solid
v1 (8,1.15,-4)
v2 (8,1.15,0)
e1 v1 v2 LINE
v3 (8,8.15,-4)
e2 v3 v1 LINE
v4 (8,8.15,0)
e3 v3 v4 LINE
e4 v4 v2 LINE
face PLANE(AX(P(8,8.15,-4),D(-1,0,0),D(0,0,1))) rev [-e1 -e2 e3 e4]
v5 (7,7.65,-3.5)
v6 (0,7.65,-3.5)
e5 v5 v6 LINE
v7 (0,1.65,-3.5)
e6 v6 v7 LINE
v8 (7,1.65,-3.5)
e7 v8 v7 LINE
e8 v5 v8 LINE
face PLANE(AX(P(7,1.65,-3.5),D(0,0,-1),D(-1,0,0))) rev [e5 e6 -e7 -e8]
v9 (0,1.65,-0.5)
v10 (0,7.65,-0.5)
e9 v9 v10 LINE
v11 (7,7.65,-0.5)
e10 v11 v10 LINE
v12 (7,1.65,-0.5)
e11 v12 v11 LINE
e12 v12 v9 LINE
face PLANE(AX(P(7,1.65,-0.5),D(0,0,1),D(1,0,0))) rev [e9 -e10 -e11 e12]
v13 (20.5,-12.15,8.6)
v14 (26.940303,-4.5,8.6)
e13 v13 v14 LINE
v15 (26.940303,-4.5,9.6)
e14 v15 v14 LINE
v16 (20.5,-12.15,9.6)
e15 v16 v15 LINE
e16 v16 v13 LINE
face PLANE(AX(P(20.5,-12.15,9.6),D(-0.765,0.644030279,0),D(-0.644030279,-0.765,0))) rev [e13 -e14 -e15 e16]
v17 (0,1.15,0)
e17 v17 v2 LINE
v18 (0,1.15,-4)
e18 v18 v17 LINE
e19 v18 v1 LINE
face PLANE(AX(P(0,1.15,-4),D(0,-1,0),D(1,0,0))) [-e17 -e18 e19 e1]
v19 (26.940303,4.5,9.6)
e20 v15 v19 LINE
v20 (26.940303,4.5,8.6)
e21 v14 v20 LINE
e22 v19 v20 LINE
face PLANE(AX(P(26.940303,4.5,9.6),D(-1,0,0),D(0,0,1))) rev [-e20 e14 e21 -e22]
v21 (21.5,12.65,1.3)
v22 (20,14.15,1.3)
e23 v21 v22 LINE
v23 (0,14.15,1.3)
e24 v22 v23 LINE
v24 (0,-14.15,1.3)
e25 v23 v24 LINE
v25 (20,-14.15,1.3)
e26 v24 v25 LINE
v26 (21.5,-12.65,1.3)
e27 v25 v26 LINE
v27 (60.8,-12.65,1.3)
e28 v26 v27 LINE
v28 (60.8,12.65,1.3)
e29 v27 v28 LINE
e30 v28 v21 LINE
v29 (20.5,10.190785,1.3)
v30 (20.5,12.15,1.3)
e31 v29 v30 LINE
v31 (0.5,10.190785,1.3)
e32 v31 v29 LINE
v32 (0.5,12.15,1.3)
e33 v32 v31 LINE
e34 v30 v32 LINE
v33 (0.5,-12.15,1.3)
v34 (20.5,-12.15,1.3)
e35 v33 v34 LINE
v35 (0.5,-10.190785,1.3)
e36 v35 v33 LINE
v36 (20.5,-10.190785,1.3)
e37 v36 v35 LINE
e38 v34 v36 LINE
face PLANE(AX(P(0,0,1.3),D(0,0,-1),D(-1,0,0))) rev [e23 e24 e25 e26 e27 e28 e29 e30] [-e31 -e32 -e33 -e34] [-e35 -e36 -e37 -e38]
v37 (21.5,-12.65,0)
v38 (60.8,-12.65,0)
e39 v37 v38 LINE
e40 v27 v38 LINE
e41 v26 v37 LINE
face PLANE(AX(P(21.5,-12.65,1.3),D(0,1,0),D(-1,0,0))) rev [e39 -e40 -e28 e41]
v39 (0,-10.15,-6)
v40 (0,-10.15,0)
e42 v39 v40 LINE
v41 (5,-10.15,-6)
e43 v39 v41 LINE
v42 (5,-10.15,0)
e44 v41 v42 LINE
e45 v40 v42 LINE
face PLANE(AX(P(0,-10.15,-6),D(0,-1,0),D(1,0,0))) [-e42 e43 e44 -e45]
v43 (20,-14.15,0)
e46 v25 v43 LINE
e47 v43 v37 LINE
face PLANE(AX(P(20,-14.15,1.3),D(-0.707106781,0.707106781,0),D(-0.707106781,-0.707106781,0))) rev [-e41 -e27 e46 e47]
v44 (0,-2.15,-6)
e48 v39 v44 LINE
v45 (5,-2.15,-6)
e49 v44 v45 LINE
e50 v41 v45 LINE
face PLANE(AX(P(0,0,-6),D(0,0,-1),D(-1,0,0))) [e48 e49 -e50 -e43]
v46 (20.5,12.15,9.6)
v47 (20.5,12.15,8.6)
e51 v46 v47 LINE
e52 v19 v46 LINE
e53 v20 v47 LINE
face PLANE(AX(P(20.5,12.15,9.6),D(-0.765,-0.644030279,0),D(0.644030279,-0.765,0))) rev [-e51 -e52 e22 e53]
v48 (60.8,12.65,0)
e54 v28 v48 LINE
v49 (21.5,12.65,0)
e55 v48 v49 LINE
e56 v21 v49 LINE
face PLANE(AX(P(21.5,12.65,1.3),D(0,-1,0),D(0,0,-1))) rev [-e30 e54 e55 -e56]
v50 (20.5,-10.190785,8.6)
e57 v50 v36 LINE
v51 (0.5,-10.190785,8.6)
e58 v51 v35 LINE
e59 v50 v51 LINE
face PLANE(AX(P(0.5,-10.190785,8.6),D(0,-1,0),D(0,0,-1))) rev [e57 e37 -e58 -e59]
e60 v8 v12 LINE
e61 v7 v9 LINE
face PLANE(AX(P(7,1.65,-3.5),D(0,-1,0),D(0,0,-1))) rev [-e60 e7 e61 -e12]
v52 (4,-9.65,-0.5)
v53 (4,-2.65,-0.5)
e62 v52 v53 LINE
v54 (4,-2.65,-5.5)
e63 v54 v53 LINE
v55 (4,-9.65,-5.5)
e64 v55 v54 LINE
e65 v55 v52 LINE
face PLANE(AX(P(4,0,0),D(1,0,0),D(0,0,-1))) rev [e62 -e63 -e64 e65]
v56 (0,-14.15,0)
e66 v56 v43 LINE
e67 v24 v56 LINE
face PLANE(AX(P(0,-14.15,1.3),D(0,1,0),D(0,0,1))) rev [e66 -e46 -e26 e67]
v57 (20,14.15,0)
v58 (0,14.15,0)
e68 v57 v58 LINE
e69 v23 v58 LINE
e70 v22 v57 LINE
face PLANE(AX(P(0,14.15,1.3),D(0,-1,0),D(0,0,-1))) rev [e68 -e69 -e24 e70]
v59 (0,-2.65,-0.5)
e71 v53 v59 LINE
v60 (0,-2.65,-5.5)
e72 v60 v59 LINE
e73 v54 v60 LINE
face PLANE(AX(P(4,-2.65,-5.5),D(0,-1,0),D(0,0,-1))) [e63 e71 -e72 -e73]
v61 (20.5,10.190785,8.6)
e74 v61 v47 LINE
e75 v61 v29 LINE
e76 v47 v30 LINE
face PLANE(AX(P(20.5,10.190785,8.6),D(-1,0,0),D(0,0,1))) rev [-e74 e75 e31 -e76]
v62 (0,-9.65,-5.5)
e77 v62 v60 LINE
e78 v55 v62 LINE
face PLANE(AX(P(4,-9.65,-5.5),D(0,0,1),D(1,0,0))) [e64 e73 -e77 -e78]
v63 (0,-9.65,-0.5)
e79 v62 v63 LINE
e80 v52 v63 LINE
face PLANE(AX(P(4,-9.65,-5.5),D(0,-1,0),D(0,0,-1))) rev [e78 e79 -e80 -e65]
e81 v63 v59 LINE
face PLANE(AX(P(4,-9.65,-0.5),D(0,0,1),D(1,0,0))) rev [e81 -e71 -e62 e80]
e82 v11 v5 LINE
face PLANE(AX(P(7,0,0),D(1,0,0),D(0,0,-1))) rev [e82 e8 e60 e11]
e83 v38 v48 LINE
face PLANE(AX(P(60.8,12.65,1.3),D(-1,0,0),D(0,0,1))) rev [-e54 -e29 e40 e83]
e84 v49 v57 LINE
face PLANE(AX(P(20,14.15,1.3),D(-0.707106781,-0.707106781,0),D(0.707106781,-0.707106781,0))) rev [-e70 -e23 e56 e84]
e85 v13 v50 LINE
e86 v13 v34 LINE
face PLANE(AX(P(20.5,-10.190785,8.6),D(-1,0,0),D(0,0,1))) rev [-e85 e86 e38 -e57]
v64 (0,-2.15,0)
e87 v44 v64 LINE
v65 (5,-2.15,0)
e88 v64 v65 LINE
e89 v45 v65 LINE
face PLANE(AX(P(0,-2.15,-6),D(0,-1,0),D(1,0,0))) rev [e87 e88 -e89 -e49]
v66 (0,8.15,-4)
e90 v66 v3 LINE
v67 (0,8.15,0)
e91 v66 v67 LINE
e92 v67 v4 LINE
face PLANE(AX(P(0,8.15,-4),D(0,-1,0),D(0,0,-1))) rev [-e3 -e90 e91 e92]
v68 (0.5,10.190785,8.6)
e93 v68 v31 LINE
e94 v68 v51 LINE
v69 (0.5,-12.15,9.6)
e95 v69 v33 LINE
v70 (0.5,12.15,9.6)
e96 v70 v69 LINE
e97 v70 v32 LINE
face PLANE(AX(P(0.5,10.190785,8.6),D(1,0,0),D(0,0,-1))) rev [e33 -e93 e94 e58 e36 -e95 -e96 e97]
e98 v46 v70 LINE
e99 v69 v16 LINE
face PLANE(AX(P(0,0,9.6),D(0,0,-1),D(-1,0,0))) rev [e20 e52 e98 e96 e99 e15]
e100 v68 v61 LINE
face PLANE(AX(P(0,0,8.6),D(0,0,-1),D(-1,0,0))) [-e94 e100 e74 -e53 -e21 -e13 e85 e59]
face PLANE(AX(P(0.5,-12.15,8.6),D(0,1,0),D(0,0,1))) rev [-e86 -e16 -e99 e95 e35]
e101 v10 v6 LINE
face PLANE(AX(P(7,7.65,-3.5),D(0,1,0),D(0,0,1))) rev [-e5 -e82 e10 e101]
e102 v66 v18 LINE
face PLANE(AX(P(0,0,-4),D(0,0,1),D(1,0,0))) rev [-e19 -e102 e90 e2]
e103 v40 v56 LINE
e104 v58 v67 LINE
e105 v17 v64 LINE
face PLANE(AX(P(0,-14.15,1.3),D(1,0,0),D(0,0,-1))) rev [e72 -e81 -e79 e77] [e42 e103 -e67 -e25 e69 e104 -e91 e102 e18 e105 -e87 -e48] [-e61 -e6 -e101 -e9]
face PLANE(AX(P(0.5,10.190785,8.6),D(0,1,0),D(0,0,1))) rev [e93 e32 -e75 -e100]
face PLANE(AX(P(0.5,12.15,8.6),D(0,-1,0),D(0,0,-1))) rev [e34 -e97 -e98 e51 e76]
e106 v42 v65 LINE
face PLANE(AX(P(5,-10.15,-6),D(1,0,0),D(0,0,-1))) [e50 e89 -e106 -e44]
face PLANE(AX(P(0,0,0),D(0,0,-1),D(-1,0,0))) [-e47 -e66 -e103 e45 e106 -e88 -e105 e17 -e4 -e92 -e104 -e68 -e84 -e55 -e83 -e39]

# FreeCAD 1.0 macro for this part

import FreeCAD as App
import Part
import Sketcher
Q = App.Units.Quantity


def add_polygon(sketch, points):
    """Adds a closed chain of lines whose ends are joined by coincident constraints."""
    first, n = sketch.GeometryCount, len(points)
    for a, b in zip(points, points[1:] + points[:1]):
        sketch.addGeometry(Part.LineSegment(App.Vector(*a, 0), App.Vector(*b, 0)), False)
    for i in range(n):
        sketch.addConstraint(Sketcher.Constraint("Coincident", first + i, 2, first + (i + 1) % n, 1))

doc = App.newDocument("Part")
body = doc.addObject("PartDesign::Body", "Body")

# Sketch on XY plane
sketch1 = doc.addObject("Sketcher::SketchObject", "Sketch")
body.addObject(sketch1)
sketch1.AttachmentSupport = (doc.XY_Plane, [""])
sketch1.MapMode = "FlatFace"
add_polygon(sketch1, [(0, 14.2), (0, -14.2), (20, -14.2), (21.5, -12.7), (60.8, -12.7), (60.8, 12.7), (21.5, 12.7), (20, 14.2)])  # lines 0-7
sketch1.addConstraint([
    Sketcher.Constraint("Vertical", 0),
    Sketcher.Constraint("Horizontal", 1),
    Sketcher.Constraint("Horizontal", 3),
    Sketcher.Constraint("Vertical", 4),
    Sketcher.Constraint("Horizontal", 5),
    Sketcher.Constraint("Horizontal", 7),
    Sketcher.Constraint("Symmetric", 0, 2, 7, 2, -1, 1),
    Sketcher.Constraint("Symmetric", 2, 2, 5, 2, -1),
    Sketcher.Constraint("Perpendicular", 2, 6),
    Sketcher.Constraint("Vertical", 1, 2, 6, 2),
    Sketcher.Constraint("DistanceX", 1, 1, 1, 2, Q("20 mm")),
    Sketcher.Constraint("DistanceX", 3, 1, 3, 2, Q("39.3 mm")),
    Sketcher.Constraint("DistanceY", 0, 2, 0, 1, Q("28.3 mm")),
    Sketcher.Constraint("DistanceY", 4, 1, 4, 2, Q("25.3 mm")),
])
pad1 = doc.addObject("PartDesign::Pad", "Pad")
body.addObject(pad1)
pad1.Profile = sketch1
pad1.Length = 1.3

# Sketch on XY plane
sketch2 = doc.addObject("Sketcher::SketchObject", "Sketch001")
body.addObject(sketch2)
sketch2.AttachmentSupport = (doc.XY_Plane, [""])
sketch2.MapMode = "FlatFace"
add_polygon(sketch2, [(8, 8), (8, 1), (0, 1), (0, 8)])  # lines 0-3
sketch2.addConstraint([
    Sketcher.Constraint("Vertical", 0),
    Sketcher.Constraint("Horizontal", 1),
    Sketcher.Constraint("Vertical", 2),
    Sketcher.Constraint("Horizontal", 3),
    Sketcher.Constraint("PointOnObject", 1, 2, -2),
    Sketcher.Constraint("DistanceX", 1, 2, 1, 1, Q("8 mm")),
    Sketcher.Constraint("DistanceY", 0, 2, 0, 1, Q("7 mm")),
    Sketcher.Constraint("DistanceY", -1, 1, 0, 2, Q("1.15 mm")),
])
pad2 = doc.addObject("PartDesign::Pad", "Pad001")
body.addObject(pad2)
pad2.Profile = sketch2
pad2.Length = 4
pad2.Reversed = True

# Sketch on XY plane
sketch3 = doc.addObject("Sketcher::SketchObject", "Sketch002")
body.addObject(sketch3)
sketch3.AttachmentSupport = (doc.XY_Plane, [""])
sketch3.MapMode = "FlatFace"
add_polygon(sketch3, [(5, -2), (5, -10), (0, -10), (0, -2)])  # lines 0-3
sketch3.addConstraint([
    Sketcher.Constraint("Vertical", 0),
    Sketcher.Constraint("Horizontal", 1),
    Sketcher.Constraint("Vertical", 2),
    Sketcher.Constraint("Horizontal", 3),
    Sketcher.Constraint("PointOnObject", 1, 2, -2),
    Sketcher.Constraint("DistanceX", 1, 2, 1, 1, Q("5 mm")),
    Sketcher.Constraint("DistanceY", 0, 2, 0, 1, Q("8 mm")),
    Sketcher.Constraint("DistanceY", 0, 2, -1, 1, Q("10.15 mm")),
])
pad3 = doc.addObject("PartDesign::Pad", "Pad002")
body.addObject(pad3)
pad3.Profile = sketch3
pad3.Length = 6
pad3.Reversed = True

# Sketch on YZ plane
sketch4 = doc.addObject("Sketcher::SketchObject", "Sketch003")
body.addObject(sketch4)
sketch4.AttachmentSupport = (doc.YZ_Plane, [""])
sketch4.MapMode = "FlatFace"
add_polygon(sketch4, [(7.7, -3.5), (1.6, -3.5), (1.6, -0.5), (7.7, -0.5)])  # lines 0-3
sketch4.addConstraint([
    Sketcher.Constraint("Horizontal", 0),
    Sketcher.Constraint("Vertical", 1),
    Sketcher.Constraint("Horizontal", 2),
    Sketcher.Constraint("Vertical", 3),
    Sketcher.Constraint("DistanceX", 0, 2, 0, 1, Q("6 mm")),
    Sketcher.Constraint("DistanceY", 1, 1, 1, 2, Q("3 mm")),
    Sketcher.Constraint("DistanceY", 0, 2, -1, 1, Q("3.5 mm")),
    Sketcher.Constraint("DistanceX", -1, 1, 0, 2, Q("1.65 mm")),
])
pocket1 = doc.addObject("PartDesign::Pocket", "Pocket")
body.addObject(pocket1)
pocket1.Profile = sketch4
pocket1.Length = 7
pocket1.Reversed = True

# Sketch on YZ plane
sketch5 = doc.addObject("Sketcher::SketchObject", "Sketch004")
body.addObject(sketch5)
sketch5.AttachmentSupport = (doc.YZ_Plane, [""])
sketch5.MapMode = "FlatFace"
add_polygon(sketch5, [(-3, -6), (-10, -6), (-10, 0), (-3, 0)])  # lines 0-3
sketch5.addConstraint([
    Sketcher.Constraint("Horizontal", 0),
    Sketcher.Constraint("Vertical", 1),
    Sketcher.Constraint("Horizontal", 2),
    Sketcher.Constraint("Vertical", 3),
    Sketcher.Constraint("DistanceX", 0, 2, 0, 1, Q("7 mm")),
    Sketcher.Constraint("DistanceY", 1, 1, 1, 2, Q("5 mm")),
    Sketcher.Constraint("DistanceY", 0, 2, -1, 1, Q("5.5 mm")),
    Sketcher.Constraint("DistanceX", 0, 2, -1, 1, Q("9.65 mm")),
])
pocket2 = doc.addObject("PartDesign::Pocket", "Pocket001")
body.addObject(pocket2)
pocket2.Profile = sketch5
pocket2.Length = 4
pocket2.Reversed = True

# Sketch on XY plane
sketch6 = doc.addObject("Sketcher::SketchObject", "Sketch005")
body.addObject(sketch6)
sketch6.AttachmentSupport = (doc.XY_Plane, [""])
sketch6.MapMode = "FlatFace"
sketch6.AttachmentOffset = App.Placement(App.Vector(0, 0, 1.3), App.Rotation())
add_polygon(sketch6, [(0.5, 12.2), (0.5, 10.2), (20.5, 10.2), (20.5, 12.2)])  # lines 0-3
add_polygon(sketch6, [(0.5, -10.2), (0.5, -12.2), (20.5, -12.2), (20.5, -10.2)])  # lines 4-7
sketch6.addConstraint([
    Sketcher.Constraint("Vertical", 0),
    Sketcher.Constraint("Horizontal", 1),
    Sketcher.Constraint("Vertical", 2),
    Sketcher.Constraint("Horizontal", 3),
    Sketcher.Constraint("Vertical", 4),
    Sketcher.Constraint("Horizontal", 5),
    Sketcher.Constraint("Vertical", 6),
    Sketcher.Constraint("Horizontal", 7),
    Sketcher.Constraint("Symmetric", 3, 2, 4, 2, -1),
    Sketcher.Constraint("Symmetric", 1, 2, 6, 2, -1),
    Sketcher.Constraint("DistanceX", 1, 1, 1, 2, Q("20 mm")),
    Sketcher.Constraint("DistanceX", -1, 1, 0, 2, Q("0.5 mm")),
    Sketcher.Constraint("DistanceY", 4, 2, 3, 2, Q("24.3 mm")),
    Sketcher.Constraint("DistanceY", 0, 2, 0, 1, Q("1.959215 mm")),
])
pad4 = doc.addObject("PartDesign::Pad", "Pad003")
body.addObject(pad4)
pad4.Profile = sketch6
pad4.Length = 7.3

# Sketch on XY plane
sketch7 = doc.addObject("Sketcher::SketchObject", "Sketch006")
body.addObject(sketch7)
sketch7.AttachmentSupport = (doc.XY_Plane, [""])
sketch7.MapMode = "FlatFace"
sketch7.AttachmentOffset = App.Placement(App.Vector(0, 0, 8.6), App.Rotation())
add_polygon(sketch7, [(0, 12), (0, -12), (20, -12), (27, -4), (27, 4), (20, 12)])  # lines 0-5
sketch7.addConstraint([
    Sketcher.Constraint("Vertical", 0),
    Sketcher.Constraint("Horizontal", 1),
    Sketcher.Constraint("Vertical", 3),
    Sketcher.Constraint("Horizontal", 5),
    Sketcher.Constraint("Symmetric", 1, 2, 4, 2, -1),
    Sketcher.Constraint("Equal", 2, 4),
    Sketcher.Constraint("DistanceX", 1, 1, 1, 2, Q("20 mm")),
    Sketcher.Constraint("DistanceY", 3, 1, 3, 2, Q("9 mm")),
    Sketcher.Constraint("Distance", 2, Q("10 mm")),
    Sketcher.Constraint("DistanceY", 0, 2, 0, 1, Q("24.3 mm")),
    Sketcher.Constraint("DistanceX", -1, 1, 0, 2, Q("0.5 mm")),
])
pad5 = doc.addObject("PartDesign::Pad", "Pad004")
body.addObject(pad5)
pad5.Profile = sketch7
pad5.Length = 1

doc.recompute()
